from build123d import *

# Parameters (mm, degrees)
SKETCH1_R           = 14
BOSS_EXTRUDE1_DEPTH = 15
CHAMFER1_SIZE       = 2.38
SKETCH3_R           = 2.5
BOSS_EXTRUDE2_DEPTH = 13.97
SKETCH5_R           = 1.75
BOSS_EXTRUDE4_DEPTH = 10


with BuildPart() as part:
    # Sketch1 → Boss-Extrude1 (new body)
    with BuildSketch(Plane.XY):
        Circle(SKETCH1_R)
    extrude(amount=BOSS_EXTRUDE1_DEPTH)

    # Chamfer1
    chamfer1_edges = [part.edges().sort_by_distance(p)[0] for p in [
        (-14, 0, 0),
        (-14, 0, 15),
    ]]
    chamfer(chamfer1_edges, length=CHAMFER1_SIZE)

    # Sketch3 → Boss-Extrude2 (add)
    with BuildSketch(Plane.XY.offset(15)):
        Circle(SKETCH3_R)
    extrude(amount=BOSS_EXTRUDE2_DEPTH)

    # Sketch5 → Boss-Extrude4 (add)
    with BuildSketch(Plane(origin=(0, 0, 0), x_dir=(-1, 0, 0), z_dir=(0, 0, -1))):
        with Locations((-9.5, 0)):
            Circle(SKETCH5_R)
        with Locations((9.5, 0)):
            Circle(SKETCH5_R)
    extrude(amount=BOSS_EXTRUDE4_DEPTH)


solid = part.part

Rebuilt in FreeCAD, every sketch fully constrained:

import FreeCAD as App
import Part
import Sketcher

V = App.Vector


def edges_at(feature, points):
    """Names of the edges that pass closest to the given points."""
    edges = feature.Shape.Edges
    near = lambda p: min(range(len(edges)), key=lambda i: edges[i].distToShape(Part.Vertex(*p))[0])
    return sorted({f"Edge{near(p) + 1}" for p in points})

doc = App.newDocument("Part")
body = doc.addObject("PartDesign::Body", "Body")

# Sketch on XY plane
sketch1 = body.newObject("Sketcher::SketchObject", "Sketch")
sketch1.AttachmentSupport = (doc.getObject("XY_Plane"), [""])
sketch1.MapMode = "FlatFace"
sketch1.addGeometry(Part.Circle(V(0, 0, 0), V(0, 0, 1), 14), False)
sketch1.addConstraint(Sketcher.Constraint("Coincident", 0, 3, -1, 1))
sketch1.addConstraint(Sketcher.Constraint("Diameter", 0, 28.0))
pad1 = body.newObject("PartDesign::Pad", "Pad")
pad1.Profile = sketch1
pad1.Length = 15
doc.recompute()

chamfer = body.newObject("PartDesign::Chamfer", "Chamfer")
chamfer.Base = (pad1, edges_at(pad1, [(-14, 0, 0), (-14, 0, 15)]))
chamfer.Size = 2.38

# Sketch on XY plane
sketch2 = body.newObject("Sketcher::SketchObject", "Sketch001")
sketch2.AttachmentSupport = (doc.getObject("XY_Plane"), [""])
sketch2.MapMode = "FlatFace"
sketch2.AttachmentOffset = App.Placement(V(0, 0, 15), App.Rotation())
sketch2.addGeometry(Part.Circle(V(0, 0, 0), V(0, 0, 1), 2.5), False)
sketch2.addConstraint(Sketcher.Constraint("Coincident", 0, 3, -1, 1))
sketch2.addConstraint(Sketcher.Constraint("Diameter", 0, 5.0))
pad2 = body.newObject("PartDesign::Pad", "Pad001")
pad2.Profile = sketch2
pad2.Length = 13.97

# Sketch on XY plane
sketch3 = body.newObject("Sketcher::SketchObject", "Sketch002")
sketch3.AttachmentSupport = (doc.getObject("XY_Plane"), [""])
sketch3.MapMode = "FlatFace"
sketch3.addGeometry(Part.Circle(V(9.5, 0, 0), V(0, 0, 1), 1.8), False)
sketch3.addGeometry(Part.Circle(V(-9.5, 0, 0), V(0, 0, 1), 1.8), False)
sketch3.addConstraint(Sketcher.Constraint("Equal", 0, 1))
sketch3.addConstraint(Sketcher.Constraint("Symmetric", 0, 3, 1, 3, -1, 1))
sketch3.addConstraint(Sketcher.Constraint("PointOnObject", 0, 3, -1))
sketch3.addConstraint(Sketcher.Constraint("Diameter", 0, 3.5))
sketch3.addConstraint(Sketcher.Constraint("DistanceX", 1, 3, 0, 3, 19.0))
pad3 = body.newObject("PartDesign::Pad", "Pad002")
pad3.Profile = sketch3
pad3.Length = 10
pad3.Reversed = True

doc.recompute()
